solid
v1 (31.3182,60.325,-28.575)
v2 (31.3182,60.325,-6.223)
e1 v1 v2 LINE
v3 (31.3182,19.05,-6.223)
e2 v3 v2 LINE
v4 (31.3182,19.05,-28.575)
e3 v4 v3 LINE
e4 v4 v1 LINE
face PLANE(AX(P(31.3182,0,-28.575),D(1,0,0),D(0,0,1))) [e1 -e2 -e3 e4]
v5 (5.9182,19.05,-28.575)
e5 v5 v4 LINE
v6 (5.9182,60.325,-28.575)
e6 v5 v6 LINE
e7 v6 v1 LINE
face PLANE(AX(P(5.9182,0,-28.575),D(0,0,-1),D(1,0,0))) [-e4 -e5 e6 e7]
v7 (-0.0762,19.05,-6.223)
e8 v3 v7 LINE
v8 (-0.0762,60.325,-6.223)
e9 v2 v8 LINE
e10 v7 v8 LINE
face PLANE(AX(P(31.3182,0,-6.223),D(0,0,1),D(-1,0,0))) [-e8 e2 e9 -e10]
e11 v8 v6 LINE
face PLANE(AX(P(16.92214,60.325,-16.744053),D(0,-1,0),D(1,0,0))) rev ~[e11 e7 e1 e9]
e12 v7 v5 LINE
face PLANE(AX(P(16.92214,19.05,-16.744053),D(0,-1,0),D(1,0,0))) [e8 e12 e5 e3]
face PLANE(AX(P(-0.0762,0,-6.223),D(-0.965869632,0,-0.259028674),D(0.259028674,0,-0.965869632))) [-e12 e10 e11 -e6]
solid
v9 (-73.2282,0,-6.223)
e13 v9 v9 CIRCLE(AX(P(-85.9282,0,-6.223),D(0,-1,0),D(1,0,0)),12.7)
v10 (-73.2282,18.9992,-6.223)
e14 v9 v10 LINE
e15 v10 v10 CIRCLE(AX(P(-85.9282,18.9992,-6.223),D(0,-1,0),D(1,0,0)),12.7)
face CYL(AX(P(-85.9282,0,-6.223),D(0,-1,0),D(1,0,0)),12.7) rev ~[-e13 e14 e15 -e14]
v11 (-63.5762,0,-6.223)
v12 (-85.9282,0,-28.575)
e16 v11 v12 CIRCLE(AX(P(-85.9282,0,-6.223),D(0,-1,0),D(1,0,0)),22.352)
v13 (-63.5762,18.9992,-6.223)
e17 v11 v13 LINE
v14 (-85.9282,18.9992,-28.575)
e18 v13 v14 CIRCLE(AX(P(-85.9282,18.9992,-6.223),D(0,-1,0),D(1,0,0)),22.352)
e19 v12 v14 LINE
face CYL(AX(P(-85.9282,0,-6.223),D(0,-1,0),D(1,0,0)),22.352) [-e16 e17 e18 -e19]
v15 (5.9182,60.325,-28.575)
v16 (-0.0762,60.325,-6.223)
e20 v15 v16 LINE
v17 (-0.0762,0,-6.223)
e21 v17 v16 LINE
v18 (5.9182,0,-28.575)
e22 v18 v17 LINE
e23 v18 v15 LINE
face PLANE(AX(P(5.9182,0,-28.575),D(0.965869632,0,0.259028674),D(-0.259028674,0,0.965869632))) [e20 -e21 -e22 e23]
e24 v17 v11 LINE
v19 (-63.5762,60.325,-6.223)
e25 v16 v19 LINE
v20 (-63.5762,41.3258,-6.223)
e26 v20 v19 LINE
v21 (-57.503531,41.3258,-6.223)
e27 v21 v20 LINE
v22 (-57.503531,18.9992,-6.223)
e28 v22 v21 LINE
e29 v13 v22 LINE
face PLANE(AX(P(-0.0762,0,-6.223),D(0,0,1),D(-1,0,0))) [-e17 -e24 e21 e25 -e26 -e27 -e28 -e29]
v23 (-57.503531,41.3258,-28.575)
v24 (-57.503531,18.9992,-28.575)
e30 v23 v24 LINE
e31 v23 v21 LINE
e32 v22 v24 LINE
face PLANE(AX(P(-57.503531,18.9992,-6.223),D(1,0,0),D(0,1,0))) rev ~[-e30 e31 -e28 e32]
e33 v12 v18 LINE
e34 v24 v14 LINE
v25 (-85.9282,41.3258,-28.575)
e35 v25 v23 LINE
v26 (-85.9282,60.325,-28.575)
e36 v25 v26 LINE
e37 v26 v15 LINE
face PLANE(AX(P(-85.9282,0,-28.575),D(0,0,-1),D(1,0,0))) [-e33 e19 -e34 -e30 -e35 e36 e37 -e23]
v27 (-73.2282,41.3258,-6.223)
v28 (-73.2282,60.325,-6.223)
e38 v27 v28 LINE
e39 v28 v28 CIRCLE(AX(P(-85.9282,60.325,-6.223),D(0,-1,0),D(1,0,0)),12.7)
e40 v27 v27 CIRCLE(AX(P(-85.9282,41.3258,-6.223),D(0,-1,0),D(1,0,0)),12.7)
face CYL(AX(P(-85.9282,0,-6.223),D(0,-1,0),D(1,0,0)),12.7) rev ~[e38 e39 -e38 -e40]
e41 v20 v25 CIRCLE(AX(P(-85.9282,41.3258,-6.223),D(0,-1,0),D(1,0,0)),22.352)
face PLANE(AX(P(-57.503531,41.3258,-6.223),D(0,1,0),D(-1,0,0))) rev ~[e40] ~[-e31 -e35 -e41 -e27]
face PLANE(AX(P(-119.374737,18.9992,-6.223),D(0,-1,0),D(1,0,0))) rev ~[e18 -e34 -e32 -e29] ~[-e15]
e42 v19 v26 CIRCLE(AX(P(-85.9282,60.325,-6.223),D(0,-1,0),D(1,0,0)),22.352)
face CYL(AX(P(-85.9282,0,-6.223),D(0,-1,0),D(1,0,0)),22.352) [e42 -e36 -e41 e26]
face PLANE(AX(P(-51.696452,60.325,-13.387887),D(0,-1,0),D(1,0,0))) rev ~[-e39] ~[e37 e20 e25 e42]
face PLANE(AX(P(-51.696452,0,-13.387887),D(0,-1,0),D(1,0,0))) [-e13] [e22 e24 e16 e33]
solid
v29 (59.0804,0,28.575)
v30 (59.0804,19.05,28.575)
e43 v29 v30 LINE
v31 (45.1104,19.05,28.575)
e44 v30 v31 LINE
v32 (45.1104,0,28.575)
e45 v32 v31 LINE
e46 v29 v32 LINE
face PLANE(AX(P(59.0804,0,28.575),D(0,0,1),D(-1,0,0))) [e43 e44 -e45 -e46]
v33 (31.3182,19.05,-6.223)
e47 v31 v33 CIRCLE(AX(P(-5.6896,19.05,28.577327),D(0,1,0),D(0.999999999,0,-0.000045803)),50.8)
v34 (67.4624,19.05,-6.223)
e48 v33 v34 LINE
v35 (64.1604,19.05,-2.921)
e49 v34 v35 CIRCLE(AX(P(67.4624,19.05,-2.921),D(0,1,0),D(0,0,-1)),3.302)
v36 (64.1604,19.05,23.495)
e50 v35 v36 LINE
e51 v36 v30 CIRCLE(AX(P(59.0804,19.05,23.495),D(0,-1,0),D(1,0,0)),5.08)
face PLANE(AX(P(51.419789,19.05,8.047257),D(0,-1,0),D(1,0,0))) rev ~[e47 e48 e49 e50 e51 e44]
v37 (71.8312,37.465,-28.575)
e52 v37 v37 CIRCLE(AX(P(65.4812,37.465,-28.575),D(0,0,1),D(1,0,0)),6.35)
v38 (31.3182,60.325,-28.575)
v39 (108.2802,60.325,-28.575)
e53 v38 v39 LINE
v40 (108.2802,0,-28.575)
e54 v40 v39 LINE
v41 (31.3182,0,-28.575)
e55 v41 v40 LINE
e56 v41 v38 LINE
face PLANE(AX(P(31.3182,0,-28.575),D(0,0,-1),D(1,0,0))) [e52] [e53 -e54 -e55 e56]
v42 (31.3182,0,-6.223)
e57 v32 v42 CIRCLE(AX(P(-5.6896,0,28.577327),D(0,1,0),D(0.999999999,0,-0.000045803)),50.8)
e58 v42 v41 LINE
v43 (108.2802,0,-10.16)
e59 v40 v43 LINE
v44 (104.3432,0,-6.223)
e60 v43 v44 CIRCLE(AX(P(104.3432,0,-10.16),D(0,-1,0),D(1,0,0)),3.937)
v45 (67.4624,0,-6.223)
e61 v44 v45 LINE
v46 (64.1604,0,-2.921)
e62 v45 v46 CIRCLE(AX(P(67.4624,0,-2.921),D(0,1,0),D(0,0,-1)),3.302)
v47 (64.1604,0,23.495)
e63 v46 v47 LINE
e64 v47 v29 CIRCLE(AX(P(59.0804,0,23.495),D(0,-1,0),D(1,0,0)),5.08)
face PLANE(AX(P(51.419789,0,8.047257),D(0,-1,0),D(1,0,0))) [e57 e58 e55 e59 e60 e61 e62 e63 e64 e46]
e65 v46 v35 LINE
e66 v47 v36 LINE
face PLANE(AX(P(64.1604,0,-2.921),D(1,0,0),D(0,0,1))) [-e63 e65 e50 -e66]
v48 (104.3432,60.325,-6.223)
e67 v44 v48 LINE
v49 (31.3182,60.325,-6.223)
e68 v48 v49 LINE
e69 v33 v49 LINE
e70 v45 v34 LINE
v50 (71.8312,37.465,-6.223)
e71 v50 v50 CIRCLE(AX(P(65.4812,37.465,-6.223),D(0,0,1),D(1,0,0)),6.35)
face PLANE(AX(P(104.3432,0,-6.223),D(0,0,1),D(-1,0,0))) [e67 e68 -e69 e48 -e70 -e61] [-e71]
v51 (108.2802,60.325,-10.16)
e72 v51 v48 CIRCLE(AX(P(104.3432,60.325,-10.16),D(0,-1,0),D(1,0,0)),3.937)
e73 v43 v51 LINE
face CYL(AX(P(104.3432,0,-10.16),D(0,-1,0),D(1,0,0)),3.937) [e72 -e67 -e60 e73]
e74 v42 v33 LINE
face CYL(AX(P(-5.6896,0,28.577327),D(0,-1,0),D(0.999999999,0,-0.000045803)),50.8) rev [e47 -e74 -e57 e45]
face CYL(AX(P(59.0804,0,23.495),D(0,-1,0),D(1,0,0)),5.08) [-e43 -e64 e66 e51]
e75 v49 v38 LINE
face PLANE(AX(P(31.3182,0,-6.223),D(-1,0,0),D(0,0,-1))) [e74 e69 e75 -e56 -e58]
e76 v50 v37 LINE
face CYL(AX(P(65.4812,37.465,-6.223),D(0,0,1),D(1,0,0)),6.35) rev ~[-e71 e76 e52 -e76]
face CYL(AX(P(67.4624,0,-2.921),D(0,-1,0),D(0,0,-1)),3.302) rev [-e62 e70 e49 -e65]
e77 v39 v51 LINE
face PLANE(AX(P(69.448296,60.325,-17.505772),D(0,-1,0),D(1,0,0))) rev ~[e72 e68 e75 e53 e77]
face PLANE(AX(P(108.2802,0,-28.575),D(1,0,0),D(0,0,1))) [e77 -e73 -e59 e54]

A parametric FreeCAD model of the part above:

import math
import FreeCAD as App
import Part
import Sketcher
Q = App.Units.Quantity

doc = App.newDocument("Part")
params = doc.addObject("Spreadsheet::Sheet", "Params")
for row, (alias, value) in enumerate([
    ("sketch1_radius", "0.155 in"),
    ("sketch1_width", "3.03 in"),
    ("sketch1_height", "0.88 in"),
    ("pad1_length", "2.375 in"),
    ("sketch2_radius", "2 in"),
    ("sketch2_radius2", "0.2 in"),
    ("sketch2_radius3", "0.13 in"),
    ("sketch2_width", "0.55 in"),
    ("sketch2_height", "1.04 in"),
    ("pad2_length", "0.75 in"),
    ("sketch3_diameter", "0.5 in"),
    ("sketch4_diameter", "1 in"),
    ("sketch4_radius", "0.88 in"),
    ("sketch4_width", "2.5 in"),
    ("sketch4_width2", "3.616 in"),
    ("pad3_length", "2.375 in"),
    ("sketch5_height", "0.879 in"),
    ("pocket2_length", "8.3 in"),
    ("sketch6_width", "1 in"),
    ("sketch6_height", "0.88 in"),
    ("sketch6_width2", "1.236 in"),
    ("pad4_length", "2.375 in"),
    ("sketch7_width", "1 in"),
    ("sketch7_height", "0.88 in"),
    ("sketch7_width2", "1.236 in"),
    ("pocket3_length", "0.75 in"),
], start=1):
    params.set(f"A{row}", alias)
    params.set(f"B{row}", "=" + value)
    params.setAlias(f"B{row}", alias)

body = doc.addObject("PartDesign::Body", "Body")

sketch1 = body.newObject("Sketcher::SketchObject", "Sketch")
sketch1.AttachmentSupport = (doc.getObject("XZ_Plane"), [""])
sketch1.MapMode = "FlatFace"
sketch1.addGeometry([
    Part.LineSegment(App.Vector(31.3182, -28.575, 0), App.Vector(108.2802, -28.575, 0)),
    Part.LineSegment(App.Vector(108.2802, -28.575, 0), App.Vector(108.2802, -10.16, 0)),
    Part.ArcOfCircle(Part.Circle(App.Vector(104.3432, -10.16, 0), App.Vector(0, 0, 1), 3.937), math.radians(0), math.radians(90)),
    Part.LineSegment(App.Vector(104.3432, -6.223, 0), App.Vector(31.3182, -6.223, 0)),
    Part.LineSegment(App.Vector(31.3182, -6.223, 0), App.Vector(31.3182, -28.575, 0)),
], False)
sketch1.addConstraint([
    Sketcher.Constraint("Coincident", 0, 2, 1, 1),
    Sketcher.Constraint("Tangent", 1, 2, 2, 1),
    Sketcher.Constraint("Tangent", 2, 2, 3, 1),
    Sketcher.Constraint("Coincident", 3, 2, 4, 1),
    Sketcher.Constraint("Coincident", 4, 2, 0, 1),
    Sketcher.Constraint("Horizontal", 0),
    Sketcher.Constraint("Vertical", 1),
    Sketcher.Constraint("Horizontal", 3),
    Sketcher.Constraint("Vertical", 4),
    Sketcher.Constraint("Radius", 2, Q("0.155 in")),
    Sketcher.Constraint("DistanceX", 0, 1, 0, 2, Q("3.03 in")),
    Sketcher.Constraint("DistanceY", 4, 2, 4, 1, Q("0.88 in")),
    Sketcher.Constraint("DistanceY", 2, 3, -1, 1, Q("0.4 in")),
    Sketcher.Constraint("DistanceX", -1, 1, 2, 3, Q("4.108 in")),
])
sketch1.setExpression("Constraints[9]", "Params.sketch1_radius")
sketch1.setExpression("Constraints[10]", "Params.sketch1_width")
sketch1.setExpression("Constraints[11]", "Params.sketch1_height")
pad1 = body.newObject("PartDesign::Pad", "Pad")
pad1.Profile = sketch1
pad1.setExpression("Length", "Params.pad1_length")
pad1.Reversed = True

sketch2 = body.newObject("Sketcher::SketchObject", "Sketch001")
sketch2.AttachmentSupport = (doc.getObject("XZ_Plane"), [""])
sketch2.MapMode = "FlatFace"
sketch2.addGeometry([
    Part.ArcOfCircle(Part.Circle(App.Vector(-5.6896, 28.577327, 0), App.Vector(0, 0, 1), 50.8), math.radians(-43.239209), math.radians(-0.002624)),
    Part.LineSegment(App.Vector(31.3182, -6.223, 0), App.Vector(67.4624, -6.223, 0)),
    Part.ArcOfCircle(Part.Circle(App.Vector(67.4624, -2.921, 0), App.Vector(0, 0, 1), 3.302), math.radians(180), math.radians(270)),
    Part.LineSegment(App.Vector(64.1604, -2.921, 0), App.Vector(64.1604, 23.495, 0)),
    Part.ArcOfCircle(Part.Circle(App.Vector(59.0804, 23.495, 0), App.Vector(0, 0, 1), 5.08), math.radians(0), math.radians(90)),
    Part.LineSegment(App.Vector(59.0804, 28.575, 0), App.Vector(45.1104, 28.575, 0)),
], False)
sketch2.addConstraint([
    Sketcher.Constraint("Coincident", 0, 1, 1, 1),
    Sketcher.Constraint("Tangent", 1, 2, 2, 2),
    Sketcher.Constraint("Tangent", 2, 1, 3, 1),
    Sketcher.Constraint("Tangent", 3, 2, 4, 1),
    Sketcher.Constraint("Tangent", 4, 2, 5, 1),
    Sketcher.Constraint("Coincident", 5, 2, 0, 2),
    Sketcher.Constraint("Horizontal", 1),
    Sketcher.Constraint("Vertical", 3),
    Sketcher.Constraint("Horizontal", 5),
    Sketcher.Constraint("Radius", 0, Q("2 in")),
    Sketcher.Constraint("Radius", 4, Q("0.2 in")),
    Sketcher.Constraint("Radius", 2, Q("0.13 in")),
    Sketcher.Constraint("DistanceX", 5, 2, 5, 1, Q("0.55 in")),
    Sketcher.Constraint("DistanceY", 3, 1, 3, 2, Q("1.04 in")),
    Sketcher.Constraint("DistanceX", 1, 1, 1, 2, Q("1.423 in")),
    Sketcher.Constraint("DistanceX", 0, 3, -1, 1, Q("0.224 in")),
    Sketcher.Constraint("DistanceY", 2, 3, -1, 1, Q("0.115 in")),
])
sketch2.setExpression("Constraints[9]", "Params.sketch2_radius")
sketch2.setExpression("Constraints[10]", "Params.sketch2_radius2")
sketch2.setExpression("Constraints[11]", "Params.sketch2_radius3")
sketch2.setExpression("Constraints[12]", "Params.sketch2_width")
sketch2.setExpression("Constraints[13]", "Params.sketch2_height")
pad2 = body.newObject("PartDesign::Pad", "Pad001")
pad2.Profile = sketch2
pad2.setExpression("Length", "Params.pad2_length")
pad2.Reversed = True

sketch3 = body.newObject("Sketcher::SketchObject", "Sketch002")
sketch3.AttachmentSupport = (doc.getObject("XY_Plane"), [""])
sketch3.MapMode = "FlatFace"
sketch3.AttachmentOffset = App.Placement(App.Vector(0, 0, -0.245 * 25.4), App.Rotation())
sketch3.addGeometry(Part.Circle(App.Vector(65.4812, 37.465, 0), App.Vector(0, 0, 1), 6.35), False)
sketch3.addConstraint([
    Sketcher.Constraint("Diameter", 0, Q("0.5 in")),
    Sketcher.Constraint("DistanceX", -1, 1, 0, 3, Q("2.578 in")),
    Sketcher.Constraint("DistanceY", -1, 1, 0, 3, Q("1.475 in")),
])
sketch3.setExpression("Constraints[0]", "Params.sketch3_diameter")
pocket1 = body.newObject("PartDesign::Pocket", "Pocket")
pocket1.Profile = sketch3
pocket1.Type = "ThroughAll"
body2 = doc.addObject("PartDesign::Body", "Body001")

sketch4 = body2.newObject("Sketcher::SketchObject", "Sketch003")
sketch4.AttachmentSupport = (doc.getObject("XZ_Plane001"), [""])
sketch4.MapMode = "FlatFace"
sketch4.addGeometry([
    Part.LineSegment(App.Vector(-85.9282, -28.575, 0), App.Vector(5.9182, -28.575, 0)),
    Part.LineSegment(App.Vector(5.9182, -28.575, 0), App.Vector(-0.0762, -6.223, 0)),
    Part.LineSegment(App.Vector(-0.0762, -6.223, 0), App.Vector(-63.5762, -6.223, 0)),
    Part.ArcOfCircle(Part.Circle(App.Vector(-85.9282, -6.223, 0), App.Vector(0, 0, 1), 22.352), math.radians(0), math.radians(270)),
    Part.Circle(App.Vector(-85.9282, -6.223, 0), App.Vector(0, 0, 1), 12.7),
], False)
sketch4.addConstraint([
    Sketcher.Constraint("Coincident", 0, 2, 1, 1),
    Sketcher.Constraint("Coincident", 1, 2, 2, 1),
    Sketcher.Constraint("Coincident", 2, 2, 3, 1),
    Sketcher.Constraint("Tangent", 3, 2, 0, 1),
    Sketcher.Constraint("Horizontal", 0),
    Sketcher.Constraint("Horizontal", 2),
    Sketcher.Constraint("Coincident", 4, 3, 3, 3),
    Sketcher.Constraint("Horizontal", 4, 3, 1, 2),
    Sketcher.Constraint("Diameter", 4, Q("1 in")),
    Sketcher.Constraint("Radius", 3, Q("0.88 in")),
    Sketcher.Constraint("DistanceX", 2, 2, 2, 1, Q("2.5 in")),
    Sketcher.Constraint("DistanceX", 0, 1, 0, 2, Q("3.616 in")),
    Sketcher.Constraint("DistanceX", 3, 3, -1, 1, Q("3.383 in")),
    Sketcher.Constraint("DistanceY", 3, 3, -1, 1, Q("0.245 in")),
])
sketch4.setExpression("Constraints[8]", "Params.sketch4_diameter")
sketch4.setExpression("Constraints[9]", "Params.sketch4_radius")
sketch4.setExpression("Constraints[10]", "Params.sketch4_width")
sketch4.setExpression("Constraints[11]", "Params.sketch4_width2")
pad3 = body2.newObject("PartDesign::Pad", "Pad002")
pad3.Profile = sketch4
pad3.setExpression("Length", "Params.pad3_length")
pad3.Reversed = True

sketch5 = body2.newObject("Sketcher::SketchObject", "Sketch004")
sketch5.AttachmentSupport = (doc.getObject("XY_Plane001"), [""])
sketch5.MapMode = "FlatFace"
sketch5.AttachmentOffset = App.Placement(App.Vector(0, 0, -0.245 * 25.4), App.Rotation())
sketch5.addGeometry([
    Part.LineSegment(App.Vector(-57.503531, 18.9992, 0), App.Vector(-57.503531, 41.3258, 0)),
    Part.LineSegment(App.Vector(-57.503531, 41.3258, 0), App.Vector(-119.374737, 41.3258, 0)),
    Part.LineSegment(App.Vector(-119.374737, 41.3258, 0), App.Vector(-119.374737, 18.9992, 0)),
    Part.LineSegment(App.Vector(-119.374737, 18.9992, 0), App.Vector(-57.503531, 18.9992, 0)),
], False)
sketch5.addConstraint([
    Sketcher.Constraint("Coincident", 0, 2, 1, 1),
    Sketcher.Constraint("Coincident", 1, 2, 2, 1),
    Sketcher.Constraint("Coincident", 2, 2, 3, 1),
    Sketcher.Constraint("Coincident", 3, 2, 0, 1),
    Sketcher.Constraint("Vertical", 0),
    Sketcher.Constraint("Horizontal", 1),
    Sketcher.Constraint("Vertical", 2),
    Sketcher.Constraint("Horizontal", 3),
    Sketcher.Constraint("DistanceY", 0, 1, 0, 2, Q("0.879 in")),
    Sketcher.Constraint("DistanceY", -1, 1, 0, 2, Q("1.627 in")),
    Sketcher.Constraint("DistanceX", 1, 2, 1, 1, Q("61.871206 mm")),
    Sketcher.Constraint("DistanceX", 0, 2, -1, 1, Q("57.503531 mm")),
])
sketch5.setExpression("Constraints[8]", "Params.sketch5_height")
pocket2 = body2.newObject("PartDesign::Pocket", "Pocket001")
pocket2.Profile = sketch5
pocket2.setExpression("Length", "Params.pocket2_length")
pocket2.Midplane = True
body3 = doc.addObject("PartDesign::Body", "Body002")

sketch6 = body3.newObject("Sketcher::SketchObject", "Sketch005")
sketch6.AttachmentSupport = (doc.getObject("XZ_Plane002"), [""])
sketch6.MapMode = "FlatFace"
sketch6.addGeometry([
    Part.LineSegment(App.Vector(5.9182, -28.575, 0), App.Vector(31.3182, -28.575, 0)),
    Part.LineSegment(App.Vector(31.3182, -28.575, 0), App.Vector(31.3182, -6.223, 0)),
    Part.LineSegment(App.Vector(31.3182, -6.223, 0), App.Vector(-0.0762, -6.223, 0)),
    Part.LineSegment(App.Vector(-0.0762, -6.223, 0), App.Vector(5.9182, -28.575, 0)),
], False)
sketch6.addConstraint([
    Sketcher.Constraint("Coincident", 0, 2, 1, 1),
    Sketcher.Constraint("Coincident", 1, 2, 2, 1),
    Sketcher.Constraint("Coincident", 2, 2, 3, 1),
    Sketcher.Constraint("Coincident", 3, 2, 0, 1),
    Sketcher.Constraint("Horizontal", 0),
    Sketcher.Constraint("Vertical", 1),
    Sketcher.Constraint("Horizontal", 2),
    Sketcher.Constraint("DistanceX", 0, 1, 0, 2, Q("1 in")),
    Sketcher.Constraint("DistanceY", 1, 1, 1, 2, Q("0.88 in")),
    Sketcher.Constraint("DistanceX", 2, 2, 2, 1, Q("1.236 in")),
    Sketcher.Constraint("DistanceX", -1, 1, 0, 2, Q("1.233 in")),
    Sketcher.Constraint("DistanceY", 0, 2, -1, 1, Q("1.125 in")),
])
sketch6.setExpression("Constraints[7]", "Params.sketch6_width")
sketch6.setExpression("Constraints[8]", "Params.sketch6_height")
sketch6.setExpression("Constraints[9]", "Params.sketch6_width2")
pad4 = body3.newObject("PartDesign::Pad", "Pad003")
pad4.Profile = sketch6
pad4.setExpression("Length", "Params.pad4_length")
pad4.Reversed = True

sketch7 = body3.newObject("Sketcher::SketchObject", "Sketch006")
sketch7.AttachmentSupport = (doc.getObject("XZ_Plane002"), [""])
sketch7.MapMode = "FlatFace"
sketch7.addGeometry([
    Part.LineSegment(App.Vector(5.9182, -28.575, 0), App.Vector(31.3182, -28.575, 0)),
    Part.LineSegment(App.Vector(31.3182, -28.575, 0), App.Vector(31.3182, -6.223, 0)),
    Part.LineSegment(App.Vector(31.3182, -6.223, 0), App.Vector(-0.0762, -6.223, 0)),
    Part.LineSegment(App.Vector(-0.0762, -6.223, 0), App.Vector(5.9182, -28.575, 0)),
], False)
sketch7.addConstraint([
    Sketcher.Constraint("Coincident", 0, 2, 1, 1),
    Sketcher.Constraint("Coincident", 1, 2, 2, 1),
    Sketcher.Constraint("Coincident", 2, 2, 3, 1),
    Sketcher.Constraint("Coincident", 3, 2, 0, 1),
    Sketcher.Constraint("Horizontal", 0),
    Sketcher.Constraint("Vertical", 1),
    Sketcher.Constraint("Horizontal", 2),
    Sketcher.Constraint("DistanceX", 0, 1, 0, 2, Q("1 in")),
    Sketcher.Constraint("DistanceY", 1, 1, 1, 2, Q("0.88 in")),
    Sketcher.Constraint("DistanceX", 2, 2, 2, 1, Q("1.236 in")),
    Sketcher.Constraint("DistanceX", -1, 1, 0, 2, Q("1.233 in")),
    Sketcher.Constraint("DistanceY", 0, 2, -1, 1, Q("1.125 in")),
])
sketch7.setExpression("Constraints[7]", "Params.sketch7_width")
sketch7.setExpression("Constraints[8]", "Params.sketch7_height")
sketch7.setExpression("Constraints[9]", "Params.sketch7_width2")
pocket3 = body3.newObject("PartDesign::Pocket", "Pocket002")
pocket3.Profile = sketch7
pocket3.setExpression("Length", "Params.pocket3_length")

doc.recompute()
